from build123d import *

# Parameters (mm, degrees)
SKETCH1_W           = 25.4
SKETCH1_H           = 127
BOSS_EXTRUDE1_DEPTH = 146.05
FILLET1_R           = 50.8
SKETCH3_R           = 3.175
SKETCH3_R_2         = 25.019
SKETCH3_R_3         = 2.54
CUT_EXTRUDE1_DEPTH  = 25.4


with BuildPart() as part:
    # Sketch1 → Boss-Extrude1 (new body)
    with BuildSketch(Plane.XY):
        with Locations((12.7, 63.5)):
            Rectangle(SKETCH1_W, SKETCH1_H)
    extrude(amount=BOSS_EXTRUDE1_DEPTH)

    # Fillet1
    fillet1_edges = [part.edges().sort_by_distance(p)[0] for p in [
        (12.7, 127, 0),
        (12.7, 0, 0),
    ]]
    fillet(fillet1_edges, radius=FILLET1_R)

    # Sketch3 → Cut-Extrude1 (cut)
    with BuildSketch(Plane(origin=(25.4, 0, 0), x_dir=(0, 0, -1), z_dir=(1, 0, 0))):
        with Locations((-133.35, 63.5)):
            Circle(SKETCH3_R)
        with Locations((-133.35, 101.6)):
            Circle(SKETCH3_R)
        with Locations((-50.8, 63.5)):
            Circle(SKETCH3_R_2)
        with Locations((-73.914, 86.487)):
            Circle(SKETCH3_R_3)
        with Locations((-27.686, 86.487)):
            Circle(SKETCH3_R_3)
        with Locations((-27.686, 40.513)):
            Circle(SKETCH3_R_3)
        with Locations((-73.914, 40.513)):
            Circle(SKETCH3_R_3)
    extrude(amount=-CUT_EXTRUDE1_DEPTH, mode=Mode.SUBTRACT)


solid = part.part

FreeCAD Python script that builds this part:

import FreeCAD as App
import Part
import Sketcher
Q = App.Units.Quantity


def edges_at(feature, points):
    """Names of the edges that pass closest to the given points."""
    edges = feature.Shape.Edges
    near = lambda p: min(range(len(edges)), key=lambda i: edges[i].distToShape(Part.Vertex(*p))[0])
    return sorted({f"Edge{near(p) + 1}" for p in points})

doc = App.newDocument("Part")
params = doc.addObject("Spreadsheet::Sheet", "Params")
for row, (alias, value) in enumerate([
    ("sketch1_width", "1 in"),
    ("sketch1_height", "5 in"),
    ("pad1_length", "5.75 in"),
    ("fillet_radius", "2 in"),
    ("sketch2_diameter", "0.2 in"),
    ("sketch2_diameter2", "0.25 in"),
    ("sketch2_diameter3", "1.97 in"),
    ("pocket1_length", "1 in"),
], start=1):
    params.set(f"A{row}", alias)
    params.set(f"B{row}", "=" + value)
    params.setAlias(f"B{row}", alias)

body = doc.addObject("PartDesign::Body", "Body")

sketch1 = body.newObject("Sketcher::SketchObject", "Sketch")
sketch1.AttachmentSupport = (doc.getObject("XY_Plane"), [""])
sketch1.MapMode = "FlatFace"
sketch1.addGeometry([
    Part.LineSegment(App.Vector(0, 127, 0), App.Vector(0, 0, 0)),
    Part.LineSegment(App.Vector(0, 0, 0), App.Vector(25, 0, 0)),
    Part.LineSegment(App.Vector(25, 0, 0), App.Vector(25, 127, 0)),
    Part.LineSegment(App.Vector(25, 127, 0), App.Vector(0, 127, 0)),
], False)
sketch1.addConstraint([
    Sketcher.Constraint("Coincident", 0, 2, 1, 1),
    Sketcher.Constraint("Coincident", 1, 2, 2, 1),
    Sketcher.Constraint("Coincident", 2, 2, 3, 1),
    Sketcher.Constraint("Coincident", 3, 2, 0, 1),
    Sketcher.Constraint("Vertical", 0),
    Sketcher.Constraint("Horizontal", 1),
    Sketcher.Constraint("Vertical", 2),
    Sketcher.Constraint("Horizontal", 3),
    Sketcher.Constraint("Coincident", 0, 2, -1, 1),
    Sketcher.Constraint("DistanceX", 1, 1, 1, 2, Q("1 in")),
    Sketcher.Constraint("DistanceY", 0, 2, 0, 1, Q("5 in")),
])
sketch1.setExpression("Constraints[9]", "Params.sketch1_width")
sketch1.setExpression("Constraints[10]", "Params.sketch1_height")
pad1 = body.newObject("PartDesign::Pad", "Pad")
pad1.Profile = sketch1
pad1.setExpression("Length", "Params.pad1_length")
doc.recompute()

fillet = body.newObject("PartDesign::Fillet", "Fillet")
fillet.Base = (pad1, edges_at(pad1, [(12.7, 127, 0), (12.7, 0, 0)]))
fillet.setExpression("Radius", "Params.fillet_radius")

sketch2 = body.newObject("Sketcher::SketchObject", "Sketch001")
sketch2.AttachmentSupport = (doc.getObject("YZ_Plane"), [""])
sketch2.MapMode = "FlatFace"
sketch2.AttachmentOffset = App.Placement(App.Vector(0, 0, 1 * 25.4), App.Rotation())
sketch2.addGeometry([
    Part.Circle(App.Vector(63.5, 133.3, 0), App.Vector(0, 0, 1), 3.2),
    Part.Circle(App.Vector(101.6, 133.3, 0), App.Vector(0, 0, 1), 3.2),
    Part.Circle(App.Vector(63.5, 50.8, 0), App.Vector(0, 0, 1), 25),
    Part.Circle(App.Vector(86.5, 73.9, 0), App.Vector(0, 0, 1), 2.5),
    Part.Circle(App.Vector(86.5, 27.7, 0), App.Vector(0, 0, 1), 2.5),
    Part.Circle(App.Vector(40.5, 27.7, 0), App.Vector(0, 0, 1), 2.5),
    Part.Circle(App.Vector(40.5, 73.9, 0), App.Vector(0, 0, 1), 2.5),
], False)
sketch2.addConstraint([
    Sketcher.Constraint("Equal", 0, 1),
    Sketcher.Constraint("Equal", 3, 4),
    Sketcher.Constraint("Equal", 4, 5),
    Sketcher.Constraint("Equal", 5, 6),
    Sketcher.Constraint("Horizontal", 0, 3, 1, 3),
    Sketcher.Constraint("Horizontal", 4, 3, 5, 3),
    Sketcher.Constraint("Horizontal", 3, 3, 6, 3),
    Sketcher.Constraint("Vertical", 0, 3, 2, 3),
    Sketcher.Constraint("Vertical", 3, 3, 4, 3),
    Sketcher.Constraint("Vertical", 5, 3, 6, 3),
    Sketcher.Constraint("Diameter", 3, Q("0.2 in")),
    Sketcher.Constraint("Diameter", 0, Q("0.25 in")),
    Sketcher.Constraint("Diameter", 2, Q("1.97 in")),
    Sketcher.Constraint("DistanceX", -1, 1, 1, 3, Q("4 in")),
    Sketcher.Constraint("DistanceY", -1, 1, 2, 3, Q("2 in")),
    Sketcher.Constraint("DistanceX", -1, 1, 0, 3, Q("2.5 in")),
    Sketcher.Constraint("DistanceY", -1, 1, 0, 3, Q("5.25 in")),
    Sketcher.Constraint("DistanceY", -1, 1, 3, 3, Q("2.91 in")),
    Sketcher.Constraint("DistanceY", -1, 1, 4, 3, Q("1.09 in")),
    Sketcher.Constraint("DistanceX", 5, 3, 4, 3, Q("1.81 in")),
    Sketcher.Constraint("DistanceX", -1, 1, 3, 3, Q("3.405 in")),
])
sketch2.setExpression("Constraints[10]", "Params.sketch2_diameter")
sketch2.setExpression("Constraints[11]", "Params.sketch2_diameter2")
sketch2.setExpression("Constraints[12]", "Params.sketch2_diameter3")
pocket1 = body.newObject("PartDesign::Pocket", "Pocket")
pocket1.Profile = sketch2
pocket1.setExpression("Length", "Params.pocket1_length")

doc.recompute()
